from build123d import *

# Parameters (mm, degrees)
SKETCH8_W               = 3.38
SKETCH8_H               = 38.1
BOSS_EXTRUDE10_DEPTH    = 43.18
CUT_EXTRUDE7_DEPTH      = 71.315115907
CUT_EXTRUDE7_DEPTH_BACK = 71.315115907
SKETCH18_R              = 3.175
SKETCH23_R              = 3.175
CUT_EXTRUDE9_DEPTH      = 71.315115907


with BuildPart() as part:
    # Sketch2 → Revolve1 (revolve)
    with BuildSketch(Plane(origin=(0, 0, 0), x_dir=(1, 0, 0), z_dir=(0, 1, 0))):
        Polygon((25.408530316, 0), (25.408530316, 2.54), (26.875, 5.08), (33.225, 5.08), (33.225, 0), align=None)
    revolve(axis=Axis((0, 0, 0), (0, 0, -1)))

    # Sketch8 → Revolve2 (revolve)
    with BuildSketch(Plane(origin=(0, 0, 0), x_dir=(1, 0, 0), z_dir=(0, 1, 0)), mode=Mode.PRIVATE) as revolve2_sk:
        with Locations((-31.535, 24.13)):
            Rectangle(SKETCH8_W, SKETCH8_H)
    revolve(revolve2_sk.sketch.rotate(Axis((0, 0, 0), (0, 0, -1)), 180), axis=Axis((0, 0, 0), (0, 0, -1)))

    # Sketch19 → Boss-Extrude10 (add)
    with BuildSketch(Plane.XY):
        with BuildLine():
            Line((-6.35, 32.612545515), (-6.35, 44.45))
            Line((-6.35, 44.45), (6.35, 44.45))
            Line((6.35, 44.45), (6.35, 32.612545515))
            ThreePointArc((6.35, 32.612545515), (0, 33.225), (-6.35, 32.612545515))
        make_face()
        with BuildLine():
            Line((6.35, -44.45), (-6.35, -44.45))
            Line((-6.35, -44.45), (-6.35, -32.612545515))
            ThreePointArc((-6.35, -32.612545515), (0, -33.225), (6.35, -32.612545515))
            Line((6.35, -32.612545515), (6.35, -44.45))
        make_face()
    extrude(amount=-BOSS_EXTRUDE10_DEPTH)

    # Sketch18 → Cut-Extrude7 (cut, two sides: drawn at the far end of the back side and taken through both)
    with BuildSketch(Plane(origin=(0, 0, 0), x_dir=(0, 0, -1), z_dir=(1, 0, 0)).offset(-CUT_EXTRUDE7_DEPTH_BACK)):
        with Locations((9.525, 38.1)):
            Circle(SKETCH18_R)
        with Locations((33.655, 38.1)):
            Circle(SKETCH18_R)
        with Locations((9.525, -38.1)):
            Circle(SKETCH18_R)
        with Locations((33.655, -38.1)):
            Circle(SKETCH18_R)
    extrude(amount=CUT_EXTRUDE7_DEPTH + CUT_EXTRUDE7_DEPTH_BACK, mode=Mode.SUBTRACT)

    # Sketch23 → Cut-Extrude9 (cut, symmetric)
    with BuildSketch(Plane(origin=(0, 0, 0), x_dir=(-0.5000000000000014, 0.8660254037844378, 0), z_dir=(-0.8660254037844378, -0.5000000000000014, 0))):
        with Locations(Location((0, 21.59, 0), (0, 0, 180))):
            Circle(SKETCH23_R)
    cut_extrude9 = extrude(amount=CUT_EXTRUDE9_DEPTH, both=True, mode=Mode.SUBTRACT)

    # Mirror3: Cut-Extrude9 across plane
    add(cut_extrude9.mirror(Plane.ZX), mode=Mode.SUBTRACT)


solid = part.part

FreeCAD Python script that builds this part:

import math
import FreeCAD as App
import Part
import Sketcher
from FreeCAD import Vector
Q = App.Units.Quantity


def add_polygon(sketch, points):
    """Adds a closed chain of lines whose ends are joined by coincident constraints."""
    first, n = sketch.GeometryCount, len(points)
    for a, b in zip(points, points[1:] + points[:1]):
        sketch.addGeometry(Part.LineSegment(App.Vector(*a, 0), App.Vector(*b, 0)), False)
    for i in range(n):
        sketch.addConstraint(Sketcher.Constraint("Coincident", first + i, 2, first + (i + 1) % n, 1))

doc = App.newDocument("Part")
params = doc.addObject("Spreadsheet::Sheet", "Params")
for row, (alias, value) in enumerate([
    ("sketch1_height", "0.1 in"),
    ("sketch1_height2", "0.2 in"),
    ("sketch1_width", "0.25 in"),
    ("revolution_angle", "360 deg"),
    ("sketch2_height", "1.5 in"),
    ("revolution2_angle", "360 deg"),
    ("sketch3_width", "0.5 in"),
    ("pad1_length", "1.7 in"),
    ("sketch4_diameter", "0.25 in"),
    ("sketch5_diameter", "0.25 in"),
    ("pocket2_length", "142.630232 mm"),
], start=1):
    params.set(f"A{row}", alias)
    params.set(f"B{row}", "=" + value)
    params.setAlias(f"B{row}", alias)

body = doc.addObject("PartDesign::Body", "Body")

sketch1 = body.newObject("Sketcher::SketchObject", "Sketch")
sketch1.AttachmentSupport = (doc.getObject("XZ_Plane"), [""])
sketch1.MapMode = "FlatFace"
add_polygon(sketch1, [(25.40853, -2.54), (25.40853, 0), (33.225, 0), (33.225, -5.08), (26.875, -5.08)])
sketch1.addConstraint(Sketcher.Constraint("Vertical", 0))
sketch1.addConstraint(Sketcher.Constraint("Horizontal", 1))
sketch1.addConstraint(Sketcher.Constraint("Vertical", 2))
sketch1.addConstraint(Sketcher.Constraint("Horizontal", 3))
sketch1.addConstraint(Sketcher.Constraint("PointOnObject", 0, 2, -1))
sketch1.addConstraint(Sketcher.Constraint("DistanceY", 0, 1, 0, 2, Q("0.1 in")))
sketch1.addConstraint(Sketcher.Constraint("DistanceY", 2, 2, 2, 1, Q("0.2 in")))
sketch1.addConstraint(Sketcher.Constraint("Angle", 4, Q("120 deg")))
sketch1.addConstraint(Sketcher.Constraint("DistanceX", 3, 2, 3, 1, Q("0.25 in")))
sketch1.addConstraint(Sketcher.Constraint("DistanceX", -1, 1, 1, 2, Q("33.225 mm")))
sketch1.setExpression("Constraints[10]", "Params.sketch1_height")
sketch1.setExpression("Constraints[11]", "Params.sketch1_height2")
sketch1.setExpression("Constraints[13]", "Params.sketch1_width")
revolution = body.newObject("PartDesign::Revolution", "Revolution")
revolution.Profile = sketch1
revolution.ReferenceAxis = (sketch1, ["V_Axis"])
revolution.setExpression("Angle", "Params.revolution_angle")

sketch2 = body.newObject("Sketcher::SketchObject", "Sketch001")
sketch2.AttachmentSupport = (doc.getObject("XZ_Plane"), [""])
sketch2.MapMode = "FlatFace"
add_polygon(sketch2, [(-33.225, -43.18), (-33.225, -5.08), (-29.845, -5.08), (-29.845, -43.18)])
sketch2.addConstraint(Sketcher.Constraint("Vertical", 0))
sketch2.addConstraint(Sketcher.Constraint("Horizontal", 1))
sketch2.addConstraint(Sketcher.Constraint("Vertical", 2))
sketch2.addConstraint(Sketcher.Constraint("Horizontal", 3))
sketch2.addConstraint(Sketcher.Constraint("DistanceY", 0, 1, 0, 2, Q("1.5 in")))
sketch2.addConstraint(Sketcher.Constraint("DistanceY", 0, 2, -1, 1, Q("0.2 in")))
sketch2.addConstraint(Sketcher.Constraint("DistanceX", 1, 2, -1, 1, Q("1.175 in")))
sketch2.addConstraint(Sketcher.Constraint("DistanceX", 1, 1, 1, 2, Q("3.38 mm")))
sketch2.setExpression("Constraints[8]", "Params.sketch2_height")
revolution2 = body.newObject("PartDesign::Revolution", "Revolution001")
revolution2.Profile = sketch2
revolution2.ReferenceAxis = (sketch2, ["V_Axis"])
revolution2.setExpression("Angle", "Params.revolution2_angle")

sketch3 = body.newObject("Sketcher::SketchObject", "Sketch002")
sketch3.AttachmentSupport = (doc.getObject("XY_Plane"), [""])
sketch3.MapMode = "FlatFace"
sketch3.addGeometry(Part.LineSegment(Vector(-6.35, 44.45, 0), Vector(-6.35, 32.612546, 0)), False)
sketch3.addGeometry(Part.ArcOfCircle(Part.Circle(Vector(0, 0, 0), Vector(0, 0, 1), 33.225), math.radians(78.98178), math.radians(101.01822)), False)
sketch3.addGeometry(Part.LineSegment(Vector(6.35, 32.612546, 0), Vector(6.35, 44.45, 0)), False)
sketch3.addGeometry(Part.LineSegment(Vector(6.35, 44.45, 0), Vector(-6.35, 44.45, 0)), False)
sketch3.addGeometry(Part.LineSegment(Vector(-6.35, -44.45, 0), Vector(6.35, -44.45, 0)), False)
sketch3.addGeometry(Part.LineSegment(Vector(6.35, -44.45, 0), Vector(6.35, -32.612546, 0)), False)
sketch3.addGeometry(Part.ArcOfCircle(Part.Circle(Vector(0, 0, 0), Vector(0, 0, 1), 33.225), math.radians(-101.01822), math.radians(-78.98178)), False)
sketch3.addGeometry(Part.LineSegment(Vector(-6.35, -32.612546, 0), Vector(-6.35, -44.45, 0)), False)
sketch3.addConstraint(Sketcher.Constraint("Coincident", 0, 2, 1, 2))
sketch3.addConstraint(Sketcher.Constraint("Coincident", 1, 1, 2, 1))
sketch3.addConstraint(Sketcher.Constraint("Coincident", 2, 2, 3, 1))
sketch3.addConstraint(Sketcher.Constraint("Coincident", 3, 2, 0, 1))
sketch3.addConstraint(Sketcher.Constraint("Coincident", 4, 2, 5, 1))
sketch3.addConstraint(Sketcher.Constraint("Coincident", 5, 2, 6, 2))
sketch3.addConstraint(Sketcher.Constraint("Coincident", 6, 1, 7, 1))
sketch3.addConstraint(Sketcher.Constraint("Coincident", 7, 2, 4, 1))
sketch3.addConstraint(Sketcher.Constraint("Vertical", 0))
sketch3.addConstraint(Sketcher.Constraint("Vertical", 2))
sketch3.addConstraint(Sketcher.Constraint("Horizontal", 3))
sketch3.addConstraint(Sketcher.Constraint("Horizontal", 4))
sketch3.addConstraint(Sketcher.Constraint("Vertical", 5))
sketch3.addConstraint(Sketcher.Constraint("Vertical", 7))
sketch3.addConstraint(Sketcher.Constraint("Coincident", 1, 3, -1, 1))
sketch3.addConstraint(Sketcher.Constraint("Coincident", 6, 3, -1, 1))
sketch3.addConstraint(Sketcher.Constraint("Equal", 1, 6))
sketch3.addConstraint(Sketcher.Constraint("Symmetric", 3, 2, 4, 2, -1, 1))
sketch3.addConstraint(Sketcher.Constraint("Horizontal", 0, 2, 1, 1))
sketch3.addConstraint(Sketcher.Constraint("Horizontal", 5, 2, 6, 1))
sketch3.addConstraint(Sketcher.Constraint("DistanceX", 3, 2, 3, 1, Q("0.5 in")))
sketch3.addConstraint(Sketcher.Constraint("DistanceY", 4, 2, 2, 2, Q("3.5 in")))
sketch3.addConstraint(Sketcher.Constraint("Radius", 1, Q("33.225 mm")))
sketch3.setExpression("Constraints[20]", "Params.sketch3_width")
pad1 = body.newObject("PartDesign::Pad", "Pad")
pad1.Profile = sketch3
pad1.setExpression("Length", "Params.pad1_length")
pad1.Reversed = True

sketch4 = body.newObject("Sketcher::SketchObject", "Sketch003")
sketch4.AttachmentSupport = (doc.getObject("YZ_Plane"), [""])
sketch4.MapMode = "FlatFace"
sketch4.addGeometry(Part.Circle(Vector(38.1, -9.525, 0), Vector(0, 0, 1), 3.175), False)
sketch4.addGeometry(Part.Circle(Vector(38.1, -33.655, 0), Vector(0, 0, 1), 3.175), False)
sketch4.addGeometry(Part.Circle(Vector(-38.1, -9.525, 0), Vector(0, 0, 1), 3.175), False)
sketch4.addGeometry(Part.Circle(Vector(-38.1, -33.655, 0), Vector(0, 0, 1), 3.175), False)
sketch4.addConstraint(Sketcher.Constraint("Equal", 0, 1))
sketch4.addConstraint(Sketcher.Constraint("Equal", 1, 2))
sketch4.addConstraint(Sketcher.Constraint("Equal", 2, 3))
sketch4.addConstraint(Sketcher.Constraint("Symmetric", 0, 3, 2, 3, -2))
sketch4.addConstraint(Sketcher.Constraint("Symmetric", 1, 3, 3, 3, -2))
sketch4.addConstraint(Sketcher.Constraint("Vertical", 0, 3, 1, 3))
sketch4.addConstraint(Sketcher.Constraint("Diameter", 0, Q("0.25 in")))
sketch4.addConstraint(Sketcher.Constraint("DistanceX", 2, 3, 0, 3, Q("3 in")))
sketch4.addConstraint(Sketcher.Constraint("DistanceY", 1, 3, 0, 3, Q("0.95 in")))
sketch4.addConstraint(Sketcher.Constraint("DistanceY", 0, 3, -1, 1, Q("0.375 in")))
sketch4.setExpression("Constraints[6]", "Params.sketch4_diameter")
pocket1 = body.newObject("PartDesign::Pocket", "Pocket")
pocket1.Profile = sketch4
pocket1.Type = "ThroughAll"
pocket1.Midplane = True

sketch5 = body.newObject("Sketcher::SketchObject", "Sketch004")
sketch5.Placement = App.Placement(Vector(0, 0, 0), App.Rotation(Vector(-0.5, 0.866025404, 0), Vector(0, 0, -1), Vector(-0.866025404, -0.5, 0), "ZXY"))
sketch5.addGeometry(Part.Circle(Vector(0, 21.59, 0), Vector(0, 0, 1), 3.175), False)
sketch5.addConstraint(Sketcher.Constraint("PointOnObject", 0, 3, -2))
sketch5.addConstraint(Sketcher.Constraint("Diameter", 0, Q("0.25 in")))
sketch5.addConstraint(Sketcher.Constraint("DistanceY", -1, 1, 0, 3, Q("0.85 in")))
sketch5.setExpression("Constraints[1]", "Params.sketch5_diameter")
pocket2 = body.newObject("PartDesign::Pocket", "Pocket001")
pocket2.Profile = sketch5
pocket2.setExpression("Length", "Params.pocket2_length")
pocket2.Midplane = True
doc.recompute()

mirrored = body.newObject("PartDesign::Mirrored", "Mirrored")
mirrored.Originals = [pocket2]
mirrored.MirrorPlane = (doc.getObject("XZ_Plane"), [""])
body.Tip = mirrored

doc.recompute()
